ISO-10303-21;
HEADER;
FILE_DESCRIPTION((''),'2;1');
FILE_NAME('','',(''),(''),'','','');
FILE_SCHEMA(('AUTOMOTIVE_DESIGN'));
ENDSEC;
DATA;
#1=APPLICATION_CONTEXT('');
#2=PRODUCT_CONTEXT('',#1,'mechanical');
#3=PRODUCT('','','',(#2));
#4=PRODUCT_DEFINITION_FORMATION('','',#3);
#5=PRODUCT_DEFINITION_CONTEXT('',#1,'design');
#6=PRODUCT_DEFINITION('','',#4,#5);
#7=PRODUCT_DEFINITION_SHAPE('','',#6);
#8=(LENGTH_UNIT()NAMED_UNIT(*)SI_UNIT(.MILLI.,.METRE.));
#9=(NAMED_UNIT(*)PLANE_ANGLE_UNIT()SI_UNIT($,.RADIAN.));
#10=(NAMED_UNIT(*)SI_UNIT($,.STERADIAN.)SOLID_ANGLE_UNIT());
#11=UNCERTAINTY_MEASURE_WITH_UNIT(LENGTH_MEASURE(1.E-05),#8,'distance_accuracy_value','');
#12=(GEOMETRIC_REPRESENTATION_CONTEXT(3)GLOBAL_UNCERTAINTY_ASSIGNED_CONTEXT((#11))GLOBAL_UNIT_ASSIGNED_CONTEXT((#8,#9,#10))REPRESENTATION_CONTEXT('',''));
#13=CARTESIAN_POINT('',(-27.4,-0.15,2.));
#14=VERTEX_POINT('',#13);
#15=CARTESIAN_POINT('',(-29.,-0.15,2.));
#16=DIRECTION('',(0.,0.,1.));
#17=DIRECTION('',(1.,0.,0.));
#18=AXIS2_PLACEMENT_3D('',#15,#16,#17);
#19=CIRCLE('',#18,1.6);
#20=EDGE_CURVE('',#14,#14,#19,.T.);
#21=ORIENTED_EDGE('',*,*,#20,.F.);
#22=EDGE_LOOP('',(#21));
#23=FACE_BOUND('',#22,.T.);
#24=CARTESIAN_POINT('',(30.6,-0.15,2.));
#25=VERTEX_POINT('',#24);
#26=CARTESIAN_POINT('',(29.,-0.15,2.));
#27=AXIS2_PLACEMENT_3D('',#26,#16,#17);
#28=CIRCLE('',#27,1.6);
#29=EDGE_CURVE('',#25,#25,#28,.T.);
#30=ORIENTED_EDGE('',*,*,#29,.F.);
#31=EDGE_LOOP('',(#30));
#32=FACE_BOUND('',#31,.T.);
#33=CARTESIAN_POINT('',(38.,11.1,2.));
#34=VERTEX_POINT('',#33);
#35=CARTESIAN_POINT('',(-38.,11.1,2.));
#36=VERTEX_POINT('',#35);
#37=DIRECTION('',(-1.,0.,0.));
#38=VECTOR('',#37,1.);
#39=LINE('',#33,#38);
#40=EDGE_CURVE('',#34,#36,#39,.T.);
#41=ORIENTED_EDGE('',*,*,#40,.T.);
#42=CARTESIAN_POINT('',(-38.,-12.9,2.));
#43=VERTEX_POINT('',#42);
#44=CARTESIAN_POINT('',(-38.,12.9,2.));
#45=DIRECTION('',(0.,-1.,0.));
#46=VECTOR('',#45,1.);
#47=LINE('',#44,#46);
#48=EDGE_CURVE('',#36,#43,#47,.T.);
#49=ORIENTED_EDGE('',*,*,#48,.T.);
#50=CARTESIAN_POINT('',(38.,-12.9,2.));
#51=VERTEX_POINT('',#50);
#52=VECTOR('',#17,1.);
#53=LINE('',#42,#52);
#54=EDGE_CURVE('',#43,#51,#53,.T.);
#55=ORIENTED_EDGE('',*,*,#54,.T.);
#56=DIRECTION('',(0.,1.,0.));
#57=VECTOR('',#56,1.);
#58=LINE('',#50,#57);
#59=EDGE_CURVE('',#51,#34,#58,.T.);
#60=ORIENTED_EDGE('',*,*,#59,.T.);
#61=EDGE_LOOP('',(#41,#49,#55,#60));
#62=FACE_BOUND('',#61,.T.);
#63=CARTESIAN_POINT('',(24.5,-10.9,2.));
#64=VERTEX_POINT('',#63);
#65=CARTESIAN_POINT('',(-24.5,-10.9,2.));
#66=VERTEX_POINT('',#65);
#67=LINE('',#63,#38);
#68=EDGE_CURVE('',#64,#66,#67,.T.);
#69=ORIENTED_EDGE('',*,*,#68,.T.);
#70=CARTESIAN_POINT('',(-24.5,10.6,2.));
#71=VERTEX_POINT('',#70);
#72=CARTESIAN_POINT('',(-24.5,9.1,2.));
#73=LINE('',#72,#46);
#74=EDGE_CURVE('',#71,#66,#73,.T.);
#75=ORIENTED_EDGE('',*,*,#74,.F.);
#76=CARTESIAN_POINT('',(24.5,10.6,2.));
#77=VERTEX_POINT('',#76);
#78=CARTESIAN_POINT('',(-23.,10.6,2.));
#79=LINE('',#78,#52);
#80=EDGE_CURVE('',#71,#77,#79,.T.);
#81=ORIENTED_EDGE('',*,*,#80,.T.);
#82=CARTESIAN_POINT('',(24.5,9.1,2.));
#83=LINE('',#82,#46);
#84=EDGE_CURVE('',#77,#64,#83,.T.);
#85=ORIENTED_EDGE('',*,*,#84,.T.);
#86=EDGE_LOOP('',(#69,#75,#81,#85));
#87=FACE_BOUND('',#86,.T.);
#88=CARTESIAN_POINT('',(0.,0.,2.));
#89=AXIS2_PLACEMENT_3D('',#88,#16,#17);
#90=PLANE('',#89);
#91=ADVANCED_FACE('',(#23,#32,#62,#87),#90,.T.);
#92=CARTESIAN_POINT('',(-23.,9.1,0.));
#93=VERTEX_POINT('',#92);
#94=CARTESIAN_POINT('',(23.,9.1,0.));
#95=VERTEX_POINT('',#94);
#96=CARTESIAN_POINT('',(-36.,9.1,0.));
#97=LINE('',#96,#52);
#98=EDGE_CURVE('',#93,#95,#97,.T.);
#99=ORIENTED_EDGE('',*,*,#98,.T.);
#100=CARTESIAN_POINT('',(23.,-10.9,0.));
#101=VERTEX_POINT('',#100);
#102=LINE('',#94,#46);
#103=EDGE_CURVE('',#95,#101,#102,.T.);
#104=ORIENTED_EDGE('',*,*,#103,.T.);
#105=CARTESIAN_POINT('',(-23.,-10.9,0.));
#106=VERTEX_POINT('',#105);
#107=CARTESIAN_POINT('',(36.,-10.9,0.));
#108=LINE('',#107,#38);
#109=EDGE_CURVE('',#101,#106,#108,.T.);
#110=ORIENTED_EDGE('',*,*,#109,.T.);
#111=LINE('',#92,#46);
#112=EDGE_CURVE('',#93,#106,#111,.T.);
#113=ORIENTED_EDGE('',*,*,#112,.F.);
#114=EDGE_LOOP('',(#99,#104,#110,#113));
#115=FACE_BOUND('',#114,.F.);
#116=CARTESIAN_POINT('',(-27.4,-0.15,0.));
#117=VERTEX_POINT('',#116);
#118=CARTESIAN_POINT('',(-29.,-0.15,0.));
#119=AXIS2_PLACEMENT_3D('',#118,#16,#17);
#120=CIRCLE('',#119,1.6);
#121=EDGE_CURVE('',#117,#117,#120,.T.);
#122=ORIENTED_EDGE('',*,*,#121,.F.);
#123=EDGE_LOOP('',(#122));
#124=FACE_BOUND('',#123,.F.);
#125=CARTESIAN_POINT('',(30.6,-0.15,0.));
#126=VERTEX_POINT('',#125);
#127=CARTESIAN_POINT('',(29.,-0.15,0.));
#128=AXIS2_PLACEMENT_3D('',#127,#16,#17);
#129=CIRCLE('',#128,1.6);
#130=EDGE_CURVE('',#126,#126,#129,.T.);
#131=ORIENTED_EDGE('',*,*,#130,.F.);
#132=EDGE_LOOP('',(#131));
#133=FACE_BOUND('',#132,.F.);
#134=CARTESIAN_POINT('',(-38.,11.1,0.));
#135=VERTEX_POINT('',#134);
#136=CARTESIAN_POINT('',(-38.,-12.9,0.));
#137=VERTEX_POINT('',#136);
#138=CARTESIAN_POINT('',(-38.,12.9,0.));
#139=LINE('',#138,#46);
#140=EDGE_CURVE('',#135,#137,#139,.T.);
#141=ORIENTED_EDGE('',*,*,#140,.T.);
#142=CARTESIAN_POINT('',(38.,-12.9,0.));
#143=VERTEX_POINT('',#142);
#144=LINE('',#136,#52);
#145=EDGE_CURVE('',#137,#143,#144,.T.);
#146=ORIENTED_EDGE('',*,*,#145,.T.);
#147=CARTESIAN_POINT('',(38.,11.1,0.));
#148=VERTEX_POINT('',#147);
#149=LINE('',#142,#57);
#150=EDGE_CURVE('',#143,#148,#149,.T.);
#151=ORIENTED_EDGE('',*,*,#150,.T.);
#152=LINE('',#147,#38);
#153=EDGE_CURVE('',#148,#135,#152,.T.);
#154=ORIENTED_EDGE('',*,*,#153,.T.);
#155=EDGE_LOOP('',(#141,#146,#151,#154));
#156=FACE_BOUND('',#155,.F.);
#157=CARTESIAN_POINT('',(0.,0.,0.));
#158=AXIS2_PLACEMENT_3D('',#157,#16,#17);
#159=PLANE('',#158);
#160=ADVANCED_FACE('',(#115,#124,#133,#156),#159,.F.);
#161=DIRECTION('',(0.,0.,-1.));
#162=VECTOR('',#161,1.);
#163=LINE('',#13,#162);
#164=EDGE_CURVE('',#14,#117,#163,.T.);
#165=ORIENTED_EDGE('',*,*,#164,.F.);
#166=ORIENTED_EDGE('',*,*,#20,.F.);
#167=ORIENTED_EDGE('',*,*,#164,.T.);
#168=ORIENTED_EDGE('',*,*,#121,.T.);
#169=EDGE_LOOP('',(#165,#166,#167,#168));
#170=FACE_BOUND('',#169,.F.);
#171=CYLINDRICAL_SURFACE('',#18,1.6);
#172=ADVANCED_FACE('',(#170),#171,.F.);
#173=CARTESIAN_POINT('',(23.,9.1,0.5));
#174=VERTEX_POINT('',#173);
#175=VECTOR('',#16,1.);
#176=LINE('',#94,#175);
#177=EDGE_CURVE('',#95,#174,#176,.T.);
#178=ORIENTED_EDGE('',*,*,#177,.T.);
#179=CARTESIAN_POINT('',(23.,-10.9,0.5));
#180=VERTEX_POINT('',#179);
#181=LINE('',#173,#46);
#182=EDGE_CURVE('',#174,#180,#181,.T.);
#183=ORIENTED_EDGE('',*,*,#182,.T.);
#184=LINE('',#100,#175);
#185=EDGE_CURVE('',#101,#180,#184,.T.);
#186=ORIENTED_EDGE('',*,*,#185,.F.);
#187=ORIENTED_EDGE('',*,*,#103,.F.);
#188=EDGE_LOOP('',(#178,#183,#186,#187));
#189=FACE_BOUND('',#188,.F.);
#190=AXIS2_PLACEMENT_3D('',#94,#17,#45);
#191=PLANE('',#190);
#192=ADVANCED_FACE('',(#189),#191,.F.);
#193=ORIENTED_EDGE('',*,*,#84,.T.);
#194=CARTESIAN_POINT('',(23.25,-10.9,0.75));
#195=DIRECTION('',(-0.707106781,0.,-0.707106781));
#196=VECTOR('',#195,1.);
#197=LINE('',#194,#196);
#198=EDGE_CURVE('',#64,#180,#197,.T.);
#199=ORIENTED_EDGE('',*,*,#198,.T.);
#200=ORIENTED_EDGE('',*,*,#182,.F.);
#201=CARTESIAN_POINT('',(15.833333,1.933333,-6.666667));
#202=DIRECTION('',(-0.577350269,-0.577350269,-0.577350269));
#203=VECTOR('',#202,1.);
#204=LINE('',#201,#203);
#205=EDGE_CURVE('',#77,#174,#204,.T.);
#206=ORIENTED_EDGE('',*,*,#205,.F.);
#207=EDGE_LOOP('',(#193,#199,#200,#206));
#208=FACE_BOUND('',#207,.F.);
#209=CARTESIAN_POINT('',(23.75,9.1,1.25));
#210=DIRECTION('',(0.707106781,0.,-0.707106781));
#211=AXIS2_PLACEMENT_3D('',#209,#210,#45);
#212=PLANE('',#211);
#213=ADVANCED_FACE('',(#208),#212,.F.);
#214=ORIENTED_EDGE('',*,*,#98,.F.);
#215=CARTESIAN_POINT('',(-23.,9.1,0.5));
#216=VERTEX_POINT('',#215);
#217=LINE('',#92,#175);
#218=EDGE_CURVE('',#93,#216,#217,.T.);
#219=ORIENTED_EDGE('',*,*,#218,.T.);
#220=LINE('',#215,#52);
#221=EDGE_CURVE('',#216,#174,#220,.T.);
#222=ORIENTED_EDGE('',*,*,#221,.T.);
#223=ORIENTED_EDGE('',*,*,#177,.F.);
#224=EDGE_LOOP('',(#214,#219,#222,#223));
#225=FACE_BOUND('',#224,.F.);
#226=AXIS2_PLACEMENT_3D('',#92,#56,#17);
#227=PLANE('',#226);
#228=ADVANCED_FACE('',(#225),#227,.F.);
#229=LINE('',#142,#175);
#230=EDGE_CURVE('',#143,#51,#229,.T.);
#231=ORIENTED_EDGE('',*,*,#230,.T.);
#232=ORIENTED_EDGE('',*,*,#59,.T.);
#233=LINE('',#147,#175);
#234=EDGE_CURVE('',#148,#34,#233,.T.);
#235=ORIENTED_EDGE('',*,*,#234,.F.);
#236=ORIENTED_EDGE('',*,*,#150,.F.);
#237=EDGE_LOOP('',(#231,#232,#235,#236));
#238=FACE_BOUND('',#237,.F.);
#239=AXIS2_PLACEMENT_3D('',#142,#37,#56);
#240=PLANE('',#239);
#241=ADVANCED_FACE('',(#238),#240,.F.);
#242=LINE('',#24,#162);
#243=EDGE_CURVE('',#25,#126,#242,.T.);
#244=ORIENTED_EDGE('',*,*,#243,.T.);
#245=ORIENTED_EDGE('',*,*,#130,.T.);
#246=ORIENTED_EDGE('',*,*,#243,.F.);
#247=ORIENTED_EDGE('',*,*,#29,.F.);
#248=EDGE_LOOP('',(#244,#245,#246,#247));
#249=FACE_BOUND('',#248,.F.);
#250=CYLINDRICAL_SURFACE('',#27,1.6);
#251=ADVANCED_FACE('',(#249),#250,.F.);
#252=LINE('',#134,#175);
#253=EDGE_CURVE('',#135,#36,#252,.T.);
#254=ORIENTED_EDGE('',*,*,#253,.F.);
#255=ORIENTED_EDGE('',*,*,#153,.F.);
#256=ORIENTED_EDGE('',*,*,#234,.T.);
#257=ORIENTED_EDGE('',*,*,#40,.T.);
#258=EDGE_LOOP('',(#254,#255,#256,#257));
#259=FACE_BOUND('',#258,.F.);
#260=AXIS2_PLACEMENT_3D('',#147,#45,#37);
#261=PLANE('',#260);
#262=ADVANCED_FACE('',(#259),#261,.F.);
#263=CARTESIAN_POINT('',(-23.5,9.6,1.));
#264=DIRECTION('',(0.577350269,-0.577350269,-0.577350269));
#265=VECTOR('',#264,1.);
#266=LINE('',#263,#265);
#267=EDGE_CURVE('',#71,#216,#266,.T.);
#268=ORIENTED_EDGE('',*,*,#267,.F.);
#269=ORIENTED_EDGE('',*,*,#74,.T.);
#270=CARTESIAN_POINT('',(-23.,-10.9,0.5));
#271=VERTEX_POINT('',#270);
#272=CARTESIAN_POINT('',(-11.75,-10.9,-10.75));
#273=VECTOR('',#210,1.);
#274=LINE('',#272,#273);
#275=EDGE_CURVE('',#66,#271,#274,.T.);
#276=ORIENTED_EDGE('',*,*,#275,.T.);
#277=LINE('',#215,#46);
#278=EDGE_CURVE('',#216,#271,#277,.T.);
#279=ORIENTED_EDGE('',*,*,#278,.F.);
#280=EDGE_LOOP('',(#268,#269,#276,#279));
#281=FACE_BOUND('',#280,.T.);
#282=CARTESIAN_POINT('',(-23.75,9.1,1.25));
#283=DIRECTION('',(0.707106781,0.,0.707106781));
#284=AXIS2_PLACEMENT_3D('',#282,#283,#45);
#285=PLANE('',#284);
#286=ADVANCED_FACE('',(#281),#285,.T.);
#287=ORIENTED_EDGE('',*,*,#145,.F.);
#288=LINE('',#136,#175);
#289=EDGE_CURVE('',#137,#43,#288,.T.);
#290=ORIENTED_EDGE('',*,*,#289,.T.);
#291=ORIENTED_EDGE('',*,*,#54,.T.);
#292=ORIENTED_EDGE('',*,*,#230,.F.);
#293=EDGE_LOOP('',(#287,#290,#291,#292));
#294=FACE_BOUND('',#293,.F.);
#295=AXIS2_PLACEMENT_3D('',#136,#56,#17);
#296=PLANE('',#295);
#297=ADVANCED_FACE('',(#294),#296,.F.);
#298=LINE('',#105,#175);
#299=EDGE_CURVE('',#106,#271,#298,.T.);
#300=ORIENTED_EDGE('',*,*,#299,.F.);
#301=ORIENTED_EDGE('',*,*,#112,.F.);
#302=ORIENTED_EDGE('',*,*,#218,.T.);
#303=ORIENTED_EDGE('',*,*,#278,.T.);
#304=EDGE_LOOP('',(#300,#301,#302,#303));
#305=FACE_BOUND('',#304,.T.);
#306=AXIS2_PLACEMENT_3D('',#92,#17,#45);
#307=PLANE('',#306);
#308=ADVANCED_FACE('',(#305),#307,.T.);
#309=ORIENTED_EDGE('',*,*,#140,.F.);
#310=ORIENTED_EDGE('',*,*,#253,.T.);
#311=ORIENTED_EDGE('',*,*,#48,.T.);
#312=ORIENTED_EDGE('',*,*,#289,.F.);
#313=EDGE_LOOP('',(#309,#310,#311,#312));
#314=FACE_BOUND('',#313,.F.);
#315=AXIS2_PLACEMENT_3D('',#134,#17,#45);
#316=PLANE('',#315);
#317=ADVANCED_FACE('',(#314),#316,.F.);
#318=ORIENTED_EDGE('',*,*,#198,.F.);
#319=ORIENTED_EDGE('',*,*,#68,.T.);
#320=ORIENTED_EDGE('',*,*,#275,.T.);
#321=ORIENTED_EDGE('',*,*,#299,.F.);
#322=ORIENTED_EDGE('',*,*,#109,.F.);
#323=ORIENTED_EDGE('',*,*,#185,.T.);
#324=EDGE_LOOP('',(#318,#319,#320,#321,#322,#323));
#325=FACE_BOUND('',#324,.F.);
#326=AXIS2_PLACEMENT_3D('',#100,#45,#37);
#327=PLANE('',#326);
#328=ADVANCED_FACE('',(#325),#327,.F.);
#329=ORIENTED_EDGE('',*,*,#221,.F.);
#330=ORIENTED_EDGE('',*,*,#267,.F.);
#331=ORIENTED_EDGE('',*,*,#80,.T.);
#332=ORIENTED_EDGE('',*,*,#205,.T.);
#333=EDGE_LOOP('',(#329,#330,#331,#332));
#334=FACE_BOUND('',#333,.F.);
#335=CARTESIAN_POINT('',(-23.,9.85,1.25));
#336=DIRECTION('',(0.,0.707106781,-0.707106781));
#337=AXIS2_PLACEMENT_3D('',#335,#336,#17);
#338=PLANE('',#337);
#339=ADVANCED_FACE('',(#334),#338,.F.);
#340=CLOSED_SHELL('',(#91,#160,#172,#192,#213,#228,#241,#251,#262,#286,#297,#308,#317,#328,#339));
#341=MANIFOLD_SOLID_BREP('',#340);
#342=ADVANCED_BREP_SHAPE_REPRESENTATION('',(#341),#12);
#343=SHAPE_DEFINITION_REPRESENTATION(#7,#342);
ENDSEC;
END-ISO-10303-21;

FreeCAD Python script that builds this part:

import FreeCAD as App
import Part
import Sketcher

V = App.Vector


def edges_at(feature, points):
    """Names of the edges that pass closest to the given points."""
    edges = feature.Shape.Edges
    near = lambda p: min(range(len(edges)), key=lambda i: edges[i].distToShape(Part.Vertex(*p))[0])
    return sorted({f"Edge{near(p) + 1}" for p in points})

doc = App.newDocument("Part")
params = doc.addObject("Spreadsheet::Sheet", "Params")
for row, (alias, value) in enumerate([
    ("sketch1_height", "24 mm"),
    ("sketch1_width", "76 mm"),
    ("sketch1_width2", "46 mm"),
    ("pad1_length", "2 mm"),
    ("chamfer_size", "1.5 mm"),
    ("sketch2_diameter", "3.2 mm"),
    ("pocket1_length", "10 mm"),
], start=1):
    params.set(f"A{row}", alias)
    params.set(f"B{row}", "=" + value)
    params.setAlias(f"B{row}", alias)

body = doc.addObject("PartDesign::Body", "Body")

sketch1 = doc.addObject("Sketcher::SketchObject", "Sketch")
body.addObject(sketch1)
sketch1.AttachmentSupport = (doc.XY_Plane, [""])
sketch1.MapMode = "FlatFace"
sketch1.addGeometry([
    Part.LineSegment(V(38, -13, 0), V(38, 11, 0)),
    Part.LineSegment(V(38, 11, 0), V(-38, 11, 0)),
    Part.LineSegment(V(-38, 11, 0), V(-38, -13, 0)),
    Part.LineSegment(V(-38, -13, 0), V(38, -13, 0)),
    Part.LineSegment(V(23, -11, 0), V(-23, -11, 0)),
    Part.LineSegment(V(-23, -11, 0), V(-23, 9, 0)),
    Part.LineSegment(V(-23, 9, 0), V(23, 9, 0)),
    Part.LineSegment(V(23, 9, 0), V(23, -11, 0)),
], False)
sketch1.addConstraint([
    Sketcher.Constraint("Coincident", 0, 2, 1, 1),
    Sketcher.Constraint("Coincident", 1, 2, 2, 1),
    Sketcher.Constraint("Coincident", 2, 2, 3, 1),
    Sketcher.Constraint("Coincident", 3, 2, 0, 1),
    Sketcher.Constraint("Coincident", 4, 2, 5, 1),
    Sketcher.Constraint("Coincident", 5, 2, 6, 1),
    Sketcher.Constraint("Coincident", 6, 2, 7, 1),
    Sketcher.Constraint("Coincident", 7, 2, 4, 1),
    Sketcher.Constraint("Vertical", 0),
    Sketcher.Constraint("Horizontal", 1),
    Sketcher.Constraint("Vertical", 2),
    Sketcher.Constraint("Horizontal", 3),
    Sketcher.Constraint("Horizontal", 4),
    Sketcher.Constraint("Vertical", 5),
    Sketcher.Constraint("Horizontal", 6),
    Sketcher.Constraint("Vertical", 7),
    Sketcher.Constraint("DistanceY", 0, 1, 0, 2, 24.0),
    Sketcher.Constraint("DistanceY", 2, 2, 4, 2, 2.0),
    Sketcher.Constraint("DistanceY", 5, 2, 1, 2, 2.0),
    Sketcher.Constraint("DistanceX", 1, 2, 1, 1, 76.0),
    Sketcher.Constraint("DistanceX", 4, 2, 4, 1, 46.0),
    Sketcher.Constraint("DistanceX", -1, 1, 0, 2, 38.0),
    Sketcher.Constraint("DistanceX", 4, 2, -1, 1, 23.0),
    Sketcher.Constraint("DistanceY", -1, 1, 0, 2, 11.1),
])
sketch1.setExpression("Constraints[16]", "Params.sketch1_height")
sketch1.setExpression("Constraints[19]", "Params.sketch1_width")
sketch1.setExpression("Constraints[20]", "Params.sketch1_width2")
pad1 = doc.addObject("PartDesign::Pad", "Pad")
body.addObject(pad1)
pad1.Profile = sketch1
pad1.setExpression("Length", "Params.pad1_length")
doc.recompute()

chamfer = doc.addObject("PartDesign::Chamfer", "Chamfer")
body.addObject(chamfer)
chamfer.Base = (pad1, edges_at(pad1, [(0, 9.1, 2), (23, -0.9, 2), (-23, -0.9, 2)]))
chamfer.setExpression("Size", "Params.chamfer_size")

sketch2 = doc.addObject("Sketcher::SketchObject", "Sketch001")
body.addObject(sketch2)
sketch2.AttachmentSupport = (doc.XY_Plane, [""])
sketch2.MapMode = "FlatFace"
sketch2.AttachmentOffset = App.Placement(V(0, 0, 2), App.Rotation())
sketch2.addGeometry([
    Part.Circle(V(-29, -0.1, 0), V(0, 0, 1), 1.6),
    Part.Circle(V(29, -0.1, 0), V(0, 0, 1), 1.6),
], False)
sketch2.addConstraint([
    Sketcher.Constraint("Equal", 0, 1),
    Sketcher.Constraint("Symmetric", 0, 3, 1, 3, -2),
    Sketcher.Constraint("Diameter", 0, 3.2),
    Sketcher.Constraint("DistanceX", 0, 3, -1, 1, 29.0),
    Sketcher.Constraint("DistanceY", 0, 3, -1, 1, 0.15),
])
sketch2.setExpression("Constraints[2]", "Params.sketch2_diameter")
pocket1 = doc.addObject("PartDesign::Pocket", "Pocket")
body.addObject(pocket1)
pocket1.Profile = sketch2
pocket1.setExpression("Length", "Params.pocket1_length")

doc.recompute()
